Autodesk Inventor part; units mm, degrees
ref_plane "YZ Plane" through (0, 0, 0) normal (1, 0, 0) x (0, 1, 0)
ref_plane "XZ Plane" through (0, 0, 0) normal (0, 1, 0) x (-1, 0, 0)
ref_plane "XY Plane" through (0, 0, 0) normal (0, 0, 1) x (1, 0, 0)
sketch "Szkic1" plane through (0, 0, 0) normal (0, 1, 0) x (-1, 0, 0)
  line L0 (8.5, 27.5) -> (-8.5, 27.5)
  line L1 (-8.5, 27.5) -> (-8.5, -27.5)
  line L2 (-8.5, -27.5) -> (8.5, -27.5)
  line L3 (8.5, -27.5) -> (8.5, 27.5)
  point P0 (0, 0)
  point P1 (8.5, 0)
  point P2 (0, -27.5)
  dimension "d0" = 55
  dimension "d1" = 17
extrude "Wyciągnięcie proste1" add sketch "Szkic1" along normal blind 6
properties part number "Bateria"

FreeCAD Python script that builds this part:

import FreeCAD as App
import Part
import Sketcher
Q = App.Units.Quantity


def add_polygon(sketch, points):
    """Adds a closed chain of lines whose ends are joined by coincident constraints."""
    first, n = sketch.GeometryCount, len(points)
    for a, b in zip(points, points[1:] + points[:1]):
        sketch.addGeometry(Part.LineSegment(App.Vector(*a, 0), App.Vector(*b, 0)), False)
    for i in range(n):
        sketch.addConstraint(Sketcher.Constraint("Coincident", first + i, 2, first + (i + 1) % n, 1))

doc = App.newDocument("Part")
body = doc.addObject("PartDesign::Body", "Body")

# Sketch on XZ plane
sketch1 = body.newObject("Sketcher::SketchObject", "Sketch")
sketch1.AttachmentSupport = (doc.getObject("XZ_Plane"), [""])
sketch1.MapMode = "FlatFace"
add_polygon(sketch1, [(-8.5, -27.5), (-8.5, 27.5), (8.5, 27.5), (8.5, -27.5)])  # lines 0-3
sketch1.addConstraint([
    Sketcher.Constraint("Vertical", 0),
    Sketcher.Constraint("Horizontal", 1),
    Sketcher.Constraint("Vertical", 2),
    Sketcher.Constraint("Horizontal", 3),
    Sketcher.Constraint("Symmetric", 0, 2, 2, 2, -1, 1),
    Sketcher.Constraint("DistanceX", 1, 1, 1, 2, Q("17 mm")),
    Sketcher.Constraint("DistanceY", 0, 1, 0, 2, Q("55 mm")),
])
pad1 = body.newObject("PartDesign::Pad", "Pad")
pad1.Profile = sketch1
pad1.Length = 6
pad1.Reversed = True

doc.recompute()
